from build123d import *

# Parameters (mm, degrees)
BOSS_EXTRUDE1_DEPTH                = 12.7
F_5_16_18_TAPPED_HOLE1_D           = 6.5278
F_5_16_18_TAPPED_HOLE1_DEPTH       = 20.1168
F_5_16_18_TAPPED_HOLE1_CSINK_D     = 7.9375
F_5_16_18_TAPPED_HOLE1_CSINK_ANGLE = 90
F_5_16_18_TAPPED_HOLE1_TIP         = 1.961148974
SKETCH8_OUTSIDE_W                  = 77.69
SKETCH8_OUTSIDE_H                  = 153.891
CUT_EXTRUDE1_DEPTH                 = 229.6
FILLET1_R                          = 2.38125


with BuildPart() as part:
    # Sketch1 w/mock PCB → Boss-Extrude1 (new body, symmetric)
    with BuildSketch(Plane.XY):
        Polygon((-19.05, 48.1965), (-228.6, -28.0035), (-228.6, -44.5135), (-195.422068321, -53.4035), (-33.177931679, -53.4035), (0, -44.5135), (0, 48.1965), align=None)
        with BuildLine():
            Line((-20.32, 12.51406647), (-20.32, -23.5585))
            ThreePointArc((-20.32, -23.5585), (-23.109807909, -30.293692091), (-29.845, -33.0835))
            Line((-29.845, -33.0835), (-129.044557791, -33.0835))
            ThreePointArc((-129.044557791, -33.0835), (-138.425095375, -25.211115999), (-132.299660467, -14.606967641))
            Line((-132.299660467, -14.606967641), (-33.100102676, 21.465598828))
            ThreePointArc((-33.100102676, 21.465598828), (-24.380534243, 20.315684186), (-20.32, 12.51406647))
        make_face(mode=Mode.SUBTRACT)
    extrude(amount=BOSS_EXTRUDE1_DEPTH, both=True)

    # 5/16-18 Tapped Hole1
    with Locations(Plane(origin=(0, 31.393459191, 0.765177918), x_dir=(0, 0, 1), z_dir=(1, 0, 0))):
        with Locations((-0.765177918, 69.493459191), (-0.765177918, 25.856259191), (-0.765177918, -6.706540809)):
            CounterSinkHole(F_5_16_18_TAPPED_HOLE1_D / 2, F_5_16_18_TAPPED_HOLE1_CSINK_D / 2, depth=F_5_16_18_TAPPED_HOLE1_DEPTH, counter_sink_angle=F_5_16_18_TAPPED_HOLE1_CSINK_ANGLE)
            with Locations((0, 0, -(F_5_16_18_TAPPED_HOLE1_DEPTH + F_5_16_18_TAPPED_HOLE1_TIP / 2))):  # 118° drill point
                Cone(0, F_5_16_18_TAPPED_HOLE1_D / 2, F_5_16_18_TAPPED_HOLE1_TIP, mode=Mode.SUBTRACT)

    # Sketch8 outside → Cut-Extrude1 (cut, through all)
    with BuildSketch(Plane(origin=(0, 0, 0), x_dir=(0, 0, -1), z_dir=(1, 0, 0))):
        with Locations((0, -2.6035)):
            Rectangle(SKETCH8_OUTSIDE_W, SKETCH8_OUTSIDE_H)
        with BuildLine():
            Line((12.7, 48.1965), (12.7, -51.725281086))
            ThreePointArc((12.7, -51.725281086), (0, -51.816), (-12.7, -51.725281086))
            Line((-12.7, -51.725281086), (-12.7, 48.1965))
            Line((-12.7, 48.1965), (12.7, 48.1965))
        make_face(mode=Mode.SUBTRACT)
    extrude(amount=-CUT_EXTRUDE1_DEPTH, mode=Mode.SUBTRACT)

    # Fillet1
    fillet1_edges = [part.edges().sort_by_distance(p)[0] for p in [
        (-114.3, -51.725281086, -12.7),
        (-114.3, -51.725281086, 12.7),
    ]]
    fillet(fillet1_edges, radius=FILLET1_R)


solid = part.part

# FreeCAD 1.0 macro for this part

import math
import FreeCAD as App
import Part
import Sketcher
Q = App.Units.Quantity


def edges_at(feature, points):
    """Names of the edges that pass closest to the given points."""
    edges = feature.Shape.Edges
    near = lambda p: min(range(len(edges)), key=lambda i: edges[i].distToShape(Part.Vertex(*p))[0])
    return sorted({f"Edge{near(p) + 1}" for p in points})


def add_polygon(sketch, points):
    """Adds a closed chain of lines whose ends are joined by coincident constraints."""
    first, n = sketch.GeometryCount, len(points)
    for a, b in zip(points, points[1:] + points[:1]):
        sketch.addGeometry(Part.LineSegment(App.Vector(*a, 0), App.Vector(*b, 0)), False)
    for i in range(n):
        sketch.addConstraint(Sketcher.Constraint("Coincident", first + i, 2, first + (i + 1) % n, 1))

doc = App.newDocument("Part")
body = doc.addObject("PartDesign::Body", "Body")

sketch1 = body.newObject("Sketcher::SketchObject", "Sketch")
sketch1.AttachmentSupport = (doc.getObject("XY_Plane"), [""])
sketch1.MapMode = "FlatFace"
add_polygon(sketch1, [(-19.05, 48.1965), (-228.6, -28.0035), (-228.6, -44.5135), (-195.422068, -53.4035), (-33.177932, -53.4035), (0, -44.5135), (0, 48.1965)])
sketch1.addGeometry(Part.ArcOfCircle(Part.Circle(App.Vector(-29.845, 12.514066, 0), App.Vector(0, 0, 1), 9.525), math.radians(0), math.radians(109.983107)), False)
sketch1.addGeometry(Part.LineSegment(App.Vector(-20.32, 12.514066, 0), App.Vector(-20.32, -23.5585, 0)), False)
sketch1.addGeometry(Part.ArcOfCircle(Part.Circle(App.Vector(-29.845, -23.5585, 0), App.Vector(0, 0, 1), 9.525), math.radians(-90), math.radians(0)), False)
sketch1.addGeometry(Part.LineSegment(App.Vector(-29.845, -33.0835, 0), App.Vector(-129.044558, -33.0835, 0)), False)
sketch1.addGeometry(Part.ArcOfCircle(Part.Circle(App.Vector(-129.044558, -23.5585, 0), App.Vector(0, 0, 1), 9.525), math.radians(109.983107), math.radians(270)), False)
sketch1.addGeometry(Part.LineSegment(App.Vector(-132.29966, -14.606968, 0), App.Vector(-33.100103, 21.465599, 0)), False)
sketch1.addConstraint(Sketcher.Constraint("Tangent", 7, 1, 8, 1))
sketch1.addConstraint(Sketcher.Constraint("Tangent", 8, 2, 9, 2))
sketch1.addConstraint(Sketcher.Constraint("Tangent", 9, 1, 10, 1))
sketch1.addConstraint(Sketcher.Constraint("Tangent", 10, 2, 11, 2))
sketch1.addConstraint(Sketcher.Constraint("Tangent", 11, 1, 12, 1))
sketch1.addConstraint(Sketcher.Constraint("Tangent", 12, 2, 7, 2))
sketch1.addConstraint(Sketcher.Constraint("Vertical", 1))
sketch1.addConstraint(Sketcher.Constraint("Horizontal", 3))
sketch1.addConstraint(Sketcher.Constraint("Vertical", 5))
sketch1.addConstraint(Sketcher.Constraint("Horizontal", 6))
sketch1.addConstraint(Sketcher.Constraint("Vertical", 8))
sketch1.addConstraint(Sketcher.Constraint("Horizontal", 10))
sketch1.addConstraint(Sketcher.Constraint("Equal", 7, 9))
sketch1.addConstraint(Sketcher.Constraint("Equal", 9, 11))
sketch1.addConstraint(Sketcher.Constraint("PointOnObject", 4, 2, -2))
sketch1.addConstraint(Sketcher.Constraint("Parallel", 0, 12))
sketch1.addConstraint(Sketcher.Constraint("Horizontal", 1, 2, 4, 2))
sketch1.addConstraint(Sketcher.Constraint("Equal", 2, 4))
sketch1.addConstraint(Sketcher.Constraint("DistanceX", 0, 2, -1, 1, Q("9 in")))
sketch1.addConstraint(Sketcher.Constraint("Angle", 2, Q("-15 deg")))
sketch1.addConstraint(Sketcher.Constraint("Radius", 7, Q("0.375 in")))
sketch1.addConstraint(Sketcher.Constraint("DistanceY", 2, 2, 0, 2, Q("1 in")))
sketch1.addConstraint(Sketcher.Constraint("DistanceY", 3, 2, 5, 2, Q("4 in")))
sketch1.addConstraint(Sketcher.Constraint("DistanceX", 6, 2, 6, 1, Q("0.75 in")))
sketch1.addConstraint(Sketcher.Constraint("DistanceY", 1, 2, 1, 1, Q("0.65 in")))
sketch1.addConstraint(Sketcher.Constraint("DistanceX", 7, 1, -1, 1, Q("0.8 in")))
sketch1.addConstraint(Sketcher.Constraint("DistanceY", 3, 2, 9, 1, Q("0.8 in")))
sketch1.addConstraint(Sketcher.Constraint("DistanceY", 9, 3, -1, 1, Q("0.9275 in")))
sketch1.addConstraint(Sketcher.Constraint("DistanceY", -1, 1, 12, 2, 21.465599))
pad1 = body.newObject("PartDesign::Pad", "Pad")
pad1.Profile = sketch1
pad1.Length = Q("1 in")
pad1.Midplane = True

sketch2 = body.newObject("Sketcher::SketchObject", "Sketch001")
sketch2.AttachmentSupport = (doc.getObject("YZ_Plane"), [""])
sketch2.MapMode = "FlatFace"
sketch2.addGeometry(Part.Circle(App.Vector(-38.1, 0, 0), App.Vector(0, 0, 1), 3.2639), False)
sketch2.addGeometry(Part.Circle(App.Vector(5.5372, 0, 0), App.Vector(0, 0, 1), 3.2639), False)
sketch2.addGeometry(Part.Circle(App.Vector(38.1, 0, 0), App.Vector(0, 0, 1), 3.2639), False)
sketch2.addConstraint(Sketcher.Constraint("Equal", 0, 1))
sketch2.addConstraint(Sketcher.Constraint("Equal", 1, 2))
sketch2.addConstraint(Sketcher.Constraint("Symmetric", 0, 3, 2, 3, -1, 1))
sketch2.addConstraint(Sketcher.Constraint("PointOnObject", 0, 3, -1))
sketch2.addConstraint(Sketcher.Constraint("PointOnObject", 1, 3, -1))
sketch2.addConstraint(Sketcher.Constraint("Diameter", 0, Q("0.257 in")))
sketch2.addConstraint(Sketcher.Constraint("DistanceX", 0, 3, 2, 3, Q("3 in")))
sketch2.addConstraint(Sketcher.Constraint("DistanceX", -1, 1, 1, 3, Q("0.218 in")))
doc.recompute()
hole = body.newObject("PartDesign::Hole", "Hole")
hole.Profile = sketch2
hole.ThreadType = "None"
hole.Diameter = Q("0.257 in")
hole.DepthType = "Dimension"
hole.Depth = Q("0.792 in")
hole.DrillPoint = "Angled"
hole.DrillPointAngle = 118
hole.HoleCutType = "Countersink"
hole.HoleCutDiameter = Q("0.3125 in")
hole.HoleCutCountersinkAngle = 90

sketch3 = body.newObject("Sketcher::SketchObject", "Sketch002")
sketch3.AttachmentSupport = (doc.getObject("YZ_Plane"), [""])
sketch3.MapMode = "FlatFace"
add_polygon(sketch3, [(74.342, 38.845), (-79.549, 38.845), (-79.549, -38.845), (74.342, -38.845)])
sketch3.addGeometry(Part.LineSegment(App.Vector(48.1965, 12.7, 0), App.Vector(48.1965, -12.7, 0)), False)
sketch3.addGeometry(Part.LineSegment(App.Vector(48.1965, -12.7, 0), App.Vector(-51.725281, -12.7, 0)), False)
sketch3.addGeometry(Part.ArcOfCircle(Part.Circle(App.Vector(837.184005, 0, 0), App.Vector(0, 0, 1), 889.000005), math.radians(179.181461), math.radians(180.818539)), False)
sketch3.addGeometry(Part.LineSegment(App.Vector(-51.725281, 12.7, 0), App.Vector(48.1965, 12.7, 0)), False)
sketch3.addConstraint(Sketcher.Constraint("Coincident", 4, 2, 5, 1))
sketch3.addConstraint(Sketcher.Constraint("Coincident", 5, 2, 6, 2))
sketch3.addConstraint(Sketcher.Constraint("Coincident", 6, 1, 7, 1))
sketch3.addConstraint(Sketcher.Constraint("Coincident", 7, 2, 4, 1))
sketch3.addConstraint(Sketcher.Constraint("Horizontal", 0))
sketch3.addConstraint(Sketcher.Constraint("Vertical", 1))
sketch3.addConstraint(Sketcher.Constraint("Horizontal", 2))
sketch3.addConstraint(Sketcher.Constraint("Vertical", 3))
sketch3.addConstraint(Sketcher.Constraint("Vertical", 4))
sketch3.addConstraint(Sketcher.Constraint("Horizontal", 5))
sketch3.addConstraint(Sketcher.Constraint("Horizontal", 7))
sketch3.addConstraint(Sketcher.Constraint("PointOnObject", 6, 3, -1))
sketch3.addConstraint(Sketcher.Constraint("Equal", 5, 7))
sketch3.addConstraint(Sketcher.Constraint("Radius", 6, Q("35.0000002 in")))
sketch3.addConstraint(Sketcher.Constraint("DistanceY", 4, 2, 4, 1, Q("1 in")))
sketch3.addConstraint(Sketcher.Constraint("DistanceX", -1, 1, 6, 3, Q("32.9600002 in")))
sketch3.addConstraint(Sketcher.Constraint("DistanceX", 0, 2, 0, 1, 153.891))
sketch3.addConstraint(Sketcher.Constraint("DistanceY", 1, 2, 1, 1, 77.69))
sketch3.addConstraint(Sketcher.Constraint("DistanceX", -1, 1, 4, 2, Q("1.8975 in")))
sketch3.addConstraint(Sketcher.Constraint("DistanceX", 0, 2, -1, 1, 79.549))
sketch3.addConstraint(Sketcher.Constraint("DistanceY", -1, 1, 0, 2, 38.845))
pocket1 = body.newObject("PartDesign::Pocket", "Pocket")
pocket1.Profile = sketch3
pocket1.Type = "ThroughAll"
doc.recompute()

fillet = body.newObject("PartDesign::Fillet", "Fillet")
fillet.Base = (pocket1, edges_at(pocket1, [(-114.3, -51.725, -12.7), (-114.3, -51.725, 12.7)]))
fillet.Radius = Q("0.09375 in")

doc.recompute()
